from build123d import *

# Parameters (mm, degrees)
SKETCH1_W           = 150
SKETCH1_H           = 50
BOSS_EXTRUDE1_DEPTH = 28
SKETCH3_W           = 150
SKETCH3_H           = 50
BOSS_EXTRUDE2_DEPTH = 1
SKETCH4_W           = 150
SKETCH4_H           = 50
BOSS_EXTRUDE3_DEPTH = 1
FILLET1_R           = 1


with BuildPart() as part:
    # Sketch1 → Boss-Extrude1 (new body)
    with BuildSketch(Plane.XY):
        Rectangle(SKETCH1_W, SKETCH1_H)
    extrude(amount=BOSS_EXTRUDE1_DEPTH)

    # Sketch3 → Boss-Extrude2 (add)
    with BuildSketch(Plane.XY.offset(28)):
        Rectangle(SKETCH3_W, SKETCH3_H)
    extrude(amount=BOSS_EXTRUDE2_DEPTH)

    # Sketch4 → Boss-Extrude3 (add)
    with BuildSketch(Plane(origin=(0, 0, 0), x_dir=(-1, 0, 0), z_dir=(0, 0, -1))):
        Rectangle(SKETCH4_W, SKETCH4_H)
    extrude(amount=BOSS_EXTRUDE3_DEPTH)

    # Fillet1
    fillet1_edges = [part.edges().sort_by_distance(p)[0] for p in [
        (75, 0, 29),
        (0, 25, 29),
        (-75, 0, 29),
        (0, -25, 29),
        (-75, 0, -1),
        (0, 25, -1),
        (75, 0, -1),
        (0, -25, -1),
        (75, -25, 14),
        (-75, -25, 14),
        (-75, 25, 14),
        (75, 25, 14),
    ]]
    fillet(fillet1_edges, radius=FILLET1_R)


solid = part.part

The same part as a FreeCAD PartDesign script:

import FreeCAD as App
import Part
import Sketcher

V = App.Vector

doc = App.newDocument("Part")
body = doc.addObject("PartDesign::Body", "Body")

# Sketch on XY plane
sketch1 = body.newObject("Sketcher::SketchObject", "Sketch")
sketch1.AttachmentSupport = (doc.getObject("XY_Plane"), [""])
sketch1.MapMode = "FlatFace"
sketch1.addGeometry(Part.LineSegment(V(-75, 25, 0), V(-75, -25, 0)), False)
sketch1.addGeometry(Part.LineSegment(V(-75, -25, 0), V(75, -25, 0)), False)
sketch1.addGeometry(Part.LineSegment(V(75, -25, 0), V(75, 25, 0)), False)
sketch1.addGeometry(Part.LineSegment(V(75, 25, 0), V(-75, 25, 0)), False)
sketch1.addConstraint(Sketcher.Constraint("Coincident", 0, 2, 1, 1))
sketch1.addConstraint(Sketcher.Constraint("Coincident", 1, 2, 2, 1))
sketch1.addConstraint(Sketcher.Constraint("Coincident", 2, 2, 3, 1))
sketch1.addConstraint(Sketcher.Constraint("Coincident", 3, 2, 0, 1))
sketch1.addConstraint(Sketcher.Constraint("Vertical", 0))
sketch1.addConstraint(Sketcher.Constraint("Horizontal", 1))
sketch1.addConstraint(Sketcher.Constraint("Vertical", 2))
sketch1.addConstraint(Sketcher.Constraint("Horizontal", 3))
sketch1.addConstraint(Sketcher.Constraint("Symmetric", 0, 2, 2, 2, -1, 1))
sketch1.addConstraint(Sketcher.Constraint("DistanceX", 1, 1, 1, 2, 150.0))
sketch1.addConstraint(Sketcher.Constraint("DistanceY", 0, 2, 0, 1, 50.0))
pad1 = body.newObject("PartDesign::Pad", "Pad")
pad1.Profile = sketch1
pad1.Length = 28

# Sketch on XY plane
sketch2 = body.newObject("Sketcher::SketchObject", "Sketch001")
sketch2.AttachmentSupport = (doc.getObject("XY_Plane"), [""])
sketch2.MapMode = "FlatFace"
sketch2.AttachmentOffset = App.Placement(V(0, 0, 28), App.Rotation())
sketch2.addGeometry(Part.LineSegment(V(-75, 25, 0), V(-75, -25, 0)), False)
sketch2.addGeometry(Part.LineSegment(V(-75, -25, 0), V(75, -25, 0)), False)
sketch2.addGeometry(Part.LineSegment(V(75, -25, 0), V(75, 25, 0)), False)
sketch2.addGeometry(Part.LineSegment(V(75, 25, 0), V(-75, 25, 0)), False)
sketch2.addConstraint(Sketcher.Constraint("Coincident", 0, 2, 1, 1))
sketch2.addConstraint(Sketcher.Constraint("Coincident", 1, 2, 2, 1))
sketch2.addConstraint(Sketcher.Constraint("Coincident", 2, 2, 3, 1))
sketch2.addConstraint(Sketcher.Constraint("Coincident", 3, 2, 0, 1))
sketch2.addConstraint(Sketcher.Constraint("Vertical", 0))
sketch2.addConstraint(Sketcher.Constraint("Horizontal", 1))
sketch2.addConstraint(Sketcher.Constraint("Vertical", 2))
sketch2.addConstraint(Sketcher.Constraint("Horizontal", 3))
sketch2.addConstraint(Sketcher.Constraint("Symmetric", 0, 2, 2, 2, -1, 1))
sketch2.addConstraint(Sketcher.Constraint("DistanceX", 1, 1, 1, 2, 150.0))
sketch2.addConstraint(Sketcher.Constraint("DistanceY", 0, 2, 0, 1, 50.0))
pad2 = body.newObject("PartDesign::Pad", "Pad001")
pad2.Profile = sketch2
pad2.Length = 1

# Sketch on XY plane
sketch3 = body.newObject("Sketcher::SketchObject", "Sketch002")
sketch3.AttachmentSupport = (doc.getObject("XY_Plane"), [""])
sketch3.MapMode = "FlatFace"
sketch3.addGeometry(Part.LineSegment(V(75, 25, 0), V(75, -25, 0)), False)
sketch3.addGeometry(Part.LineSegment(V(75, -25, 0), V(-75, -25, 0)), False)
sketch3.addGeometry(Part.LineSegment(V(-75, -25, 0), V(-75, 25, 0)), False)
sketch3.addGeometry(Part.LineSegment(V(-75, 25, 0), V(75, 25, 0)), False)
sketch3.addConstraint(Sketcher.Constraint("Coincident", 0, 2, 1, 1))
sketch3.addConstraint(Sketcher.Constraint("Coincident", 1, 2, 2, 1))
sketch3.addConstraint(Sketcher.Constraint("Coincident", 2, 2, 3, 1))
sketch3.addConstraint(Sketcher.Constraint("Coincident", 3, 2, 0, 1))
sketch3.addConstraint(Sketcher.Constraint("Vertical", 0))
sketch3.addConstraint(Sketcher.Constraint("Horizontal", 1))
sketch3.addConstraint(Sketcher.Constraint("Vertical", 2))
sketch3.addConstraint(Sketcher.Constraint("Horizontal", 3))
sketch3.addConstraint(Sketcher.Constraint("Symmetric", 0, 2, 2, 2, -1, 1))
sketch3.addConstraint(Sketcher.Constraint("DistanceX", 1, 2, 1, 1, 150.0))
sketch3.addConstraint(Sketcher.Constraint("DistanceY", 0, 2, 0, 1, 50.0))
pad3 = body.newObject("PartDesign::Pad", "Pad002")
pad3.Profile = sketch3
pad3.Length = 1
pad3.Reversed = True
doc.recompute()

fillet = body.newObject("PartDesign::Fillet", "Fillet")
fillet.Base = (pad3, ["Edge1"])
fillet.UseAllEdges = True
fillet.Radius = 1

doc.recompute()
